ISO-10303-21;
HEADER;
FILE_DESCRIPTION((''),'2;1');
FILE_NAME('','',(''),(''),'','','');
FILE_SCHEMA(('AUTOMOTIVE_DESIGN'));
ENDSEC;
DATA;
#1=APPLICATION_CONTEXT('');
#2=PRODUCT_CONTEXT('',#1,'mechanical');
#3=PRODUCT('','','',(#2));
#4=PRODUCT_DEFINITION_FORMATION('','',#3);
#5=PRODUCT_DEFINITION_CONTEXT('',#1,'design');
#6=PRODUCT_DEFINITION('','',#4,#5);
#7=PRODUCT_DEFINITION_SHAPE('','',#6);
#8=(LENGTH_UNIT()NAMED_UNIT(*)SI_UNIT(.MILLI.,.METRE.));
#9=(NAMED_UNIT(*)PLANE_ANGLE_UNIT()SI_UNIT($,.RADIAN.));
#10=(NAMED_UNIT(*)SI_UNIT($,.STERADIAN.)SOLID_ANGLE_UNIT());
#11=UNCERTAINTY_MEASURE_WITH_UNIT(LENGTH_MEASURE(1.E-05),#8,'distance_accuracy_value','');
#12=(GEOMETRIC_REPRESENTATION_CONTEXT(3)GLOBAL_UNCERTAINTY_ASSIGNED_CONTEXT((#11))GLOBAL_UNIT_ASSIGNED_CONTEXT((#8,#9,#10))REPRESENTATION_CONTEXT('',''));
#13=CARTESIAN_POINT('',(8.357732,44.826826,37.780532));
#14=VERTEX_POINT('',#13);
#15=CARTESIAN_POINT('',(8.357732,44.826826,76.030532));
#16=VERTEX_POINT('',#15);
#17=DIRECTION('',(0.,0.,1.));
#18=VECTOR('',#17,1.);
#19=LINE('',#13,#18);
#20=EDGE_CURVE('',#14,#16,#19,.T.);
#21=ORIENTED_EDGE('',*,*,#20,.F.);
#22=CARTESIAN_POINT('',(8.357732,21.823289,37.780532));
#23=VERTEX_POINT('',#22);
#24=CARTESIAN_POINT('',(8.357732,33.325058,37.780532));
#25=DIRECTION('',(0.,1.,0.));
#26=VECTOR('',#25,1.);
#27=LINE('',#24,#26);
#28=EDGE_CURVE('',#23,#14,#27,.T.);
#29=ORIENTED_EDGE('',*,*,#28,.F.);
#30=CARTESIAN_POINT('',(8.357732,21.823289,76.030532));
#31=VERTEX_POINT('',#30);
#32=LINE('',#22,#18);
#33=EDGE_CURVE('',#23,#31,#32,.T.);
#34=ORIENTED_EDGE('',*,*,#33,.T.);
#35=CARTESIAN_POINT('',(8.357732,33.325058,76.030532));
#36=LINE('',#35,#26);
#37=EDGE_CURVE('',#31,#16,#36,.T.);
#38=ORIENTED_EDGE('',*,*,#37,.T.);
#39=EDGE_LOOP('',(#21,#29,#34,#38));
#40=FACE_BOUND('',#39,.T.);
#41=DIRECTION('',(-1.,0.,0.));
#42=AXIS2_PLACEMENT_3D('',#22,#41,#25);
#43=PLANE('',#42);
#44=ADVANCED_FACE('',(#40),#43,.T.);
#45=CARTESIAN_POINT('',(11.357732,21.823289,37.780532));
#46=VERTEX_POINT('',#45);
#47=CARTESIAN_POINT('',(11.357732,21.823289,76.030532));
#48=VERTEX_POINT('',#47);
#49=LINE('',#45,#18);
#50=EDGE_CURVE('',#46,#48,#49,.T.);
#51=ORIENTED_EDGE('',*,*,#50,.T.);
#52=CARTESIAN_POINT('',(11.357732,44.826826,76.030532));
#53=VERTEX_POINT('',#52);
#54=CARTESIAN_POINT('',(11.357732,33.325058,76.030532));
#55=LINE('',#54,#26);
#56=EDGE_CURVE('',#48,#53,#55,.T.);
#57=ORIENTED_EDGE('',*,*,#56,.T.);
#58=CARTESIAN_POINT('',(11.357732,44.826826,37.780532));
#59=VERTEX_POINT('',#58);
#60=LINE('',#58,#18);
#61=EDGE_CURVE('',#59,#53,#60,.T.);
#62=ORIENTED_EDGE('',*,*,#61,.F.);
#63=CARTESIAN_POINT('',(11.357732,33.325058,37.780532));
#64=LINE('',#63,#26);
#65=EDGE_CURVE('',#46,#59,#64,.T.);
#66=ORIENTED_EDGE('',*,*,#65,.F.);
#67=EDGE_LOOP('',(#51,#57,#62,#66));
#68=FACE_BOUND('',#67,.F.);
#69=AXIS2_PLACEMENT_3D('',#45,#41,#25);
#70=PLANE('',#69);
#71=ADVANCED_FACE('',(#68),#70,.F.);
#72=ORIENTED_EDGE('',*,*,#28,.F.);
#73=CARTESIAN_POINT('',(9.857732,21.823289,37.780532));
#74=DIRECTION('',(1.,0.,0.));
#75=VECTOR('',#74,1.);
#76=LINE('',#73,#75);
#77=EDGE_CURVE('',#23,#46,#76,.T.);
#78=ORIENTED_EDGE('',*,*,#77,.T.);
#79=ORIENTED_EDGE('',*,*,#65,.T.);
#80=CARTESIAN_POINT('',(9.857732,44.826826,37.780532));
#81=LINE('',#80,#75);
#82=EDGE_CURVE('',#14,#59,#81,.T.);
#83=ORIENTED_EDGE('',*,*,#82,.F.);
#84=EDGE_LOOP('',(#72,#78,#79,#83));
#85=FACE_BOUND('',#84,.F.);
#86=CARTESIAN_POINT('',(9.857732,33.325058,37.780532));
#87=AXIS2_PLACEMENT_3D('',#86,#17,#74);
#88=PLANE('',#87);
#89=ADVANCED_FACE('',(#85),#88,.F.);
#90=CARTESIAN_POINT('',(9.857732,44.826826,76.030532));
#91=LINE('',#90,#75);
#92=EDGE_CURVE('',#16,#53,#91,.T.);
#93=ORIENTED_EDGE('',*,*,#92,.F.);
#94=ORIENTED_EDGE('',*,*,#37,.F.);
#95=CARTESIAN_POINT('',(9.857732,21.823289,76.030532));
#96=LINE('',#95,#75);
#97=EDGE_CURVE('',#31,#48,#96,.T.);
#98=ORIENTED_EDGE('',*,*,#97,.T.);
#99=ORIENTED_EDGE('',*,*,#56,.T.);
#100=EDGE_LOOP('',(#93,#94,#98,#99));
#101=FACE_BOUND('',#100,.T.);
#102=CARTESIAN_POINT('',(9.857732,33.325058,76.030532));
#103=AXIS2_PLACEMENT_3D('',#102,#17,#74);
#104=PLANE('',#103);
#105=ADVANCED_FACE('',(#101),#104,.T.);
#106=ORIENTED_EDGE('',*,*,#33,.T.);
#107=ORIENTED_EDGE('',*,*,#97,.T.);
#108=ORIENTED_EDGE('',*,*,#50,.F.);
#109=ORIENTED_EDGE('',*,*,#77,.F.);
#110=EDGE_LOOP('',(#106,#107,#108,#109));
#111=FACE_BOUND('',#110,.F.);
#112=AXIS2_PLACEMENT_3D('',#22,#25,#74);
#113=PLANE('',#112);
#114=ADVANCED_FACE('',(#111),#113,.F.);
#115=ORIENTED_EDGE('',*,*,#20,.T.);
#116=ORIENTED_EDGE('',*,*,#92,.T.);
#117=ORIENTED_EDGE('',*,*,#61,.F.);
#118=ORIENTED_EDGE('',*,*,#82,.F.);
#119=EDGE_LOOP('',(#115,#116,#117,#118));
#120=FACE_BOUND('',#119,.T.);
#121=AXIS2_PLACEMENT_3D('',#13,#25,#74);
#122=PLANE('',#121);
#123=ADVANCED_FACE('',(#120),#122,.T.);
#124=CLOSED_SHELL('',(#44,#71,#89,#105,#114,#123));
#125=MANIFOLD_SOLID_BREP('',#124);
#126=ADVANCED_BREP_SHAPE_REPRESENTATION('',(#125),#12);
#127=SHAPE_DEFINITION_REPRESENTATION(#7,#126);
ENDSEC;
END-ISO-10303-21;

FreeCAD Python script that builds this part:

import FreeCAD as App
import Part
import Sketcher
from FreeCAD import Vector
Q = App.Units.Quantity


def add_polygon(sketch, points):
    """Adds a closed chain of lines whose ends are joined by coincident constraints."""
    first, n = sketch.GeometryCount, len(points)
    for a, b in zip(points, points[1:] + points[:1]):
        sketch.addGeometry(Part.LineSegment(App.Vector(*a, 0), App.Vector(*b, 0)), False)
    for i in range(n):
        sketch.addConstraint(Sketcher.Constraint("Coincident", first + i, 2, first + (i + 1) % n, 1))

doc = App.newDocument("Part")
body = doc.addObject("PartDesign::Body", "Body")

sketch1 = body.newObject("Sketcher::SketchObject", "Sketch")
sketch1.AttachmentSupport = (doc.getObject("XY_Plane"), [""])
sketch1.MapMode = "FlatFace"
sketch1.AttachmentOffset = App.Placement(Vector(0, 0, 37.780532), App.Rotation())
add_polygon(sketch1, [(8.4, 44.8), (8.4, 21.8), (11.4, 21.8), (11.4, 44.8)])
sketch1.addConstraint([
    Sketcher.Constraint("Vertical", 0),
    Sketcher.Constraint("Horizontal", 1),
    Sketcher.Constraint("Vertical", 2),
    Sketcher.Constraint("Horizontal", 3),
    Sketcher.Constraint("DistanceX", 1, 1, 1, 2, Q("3 mm")),
    Sketcher.Constraint("DistanceY", 0, 2, 0, 1, Q("23.003536 mm")),
    Sketcher.Constraint("DistanceY", -1, 1, 0, 2, Q("21.823289 mm")),
    Sketcher.Constraint("DistanceX", -1, 1, 0, 2, Q("8.357732 mm")),
])
pad1 = body.newObject("PartDesign::Pad", "Pad")
pad1.Profile = sketch1
pad1.Length = 38.25

doc.recompute()
